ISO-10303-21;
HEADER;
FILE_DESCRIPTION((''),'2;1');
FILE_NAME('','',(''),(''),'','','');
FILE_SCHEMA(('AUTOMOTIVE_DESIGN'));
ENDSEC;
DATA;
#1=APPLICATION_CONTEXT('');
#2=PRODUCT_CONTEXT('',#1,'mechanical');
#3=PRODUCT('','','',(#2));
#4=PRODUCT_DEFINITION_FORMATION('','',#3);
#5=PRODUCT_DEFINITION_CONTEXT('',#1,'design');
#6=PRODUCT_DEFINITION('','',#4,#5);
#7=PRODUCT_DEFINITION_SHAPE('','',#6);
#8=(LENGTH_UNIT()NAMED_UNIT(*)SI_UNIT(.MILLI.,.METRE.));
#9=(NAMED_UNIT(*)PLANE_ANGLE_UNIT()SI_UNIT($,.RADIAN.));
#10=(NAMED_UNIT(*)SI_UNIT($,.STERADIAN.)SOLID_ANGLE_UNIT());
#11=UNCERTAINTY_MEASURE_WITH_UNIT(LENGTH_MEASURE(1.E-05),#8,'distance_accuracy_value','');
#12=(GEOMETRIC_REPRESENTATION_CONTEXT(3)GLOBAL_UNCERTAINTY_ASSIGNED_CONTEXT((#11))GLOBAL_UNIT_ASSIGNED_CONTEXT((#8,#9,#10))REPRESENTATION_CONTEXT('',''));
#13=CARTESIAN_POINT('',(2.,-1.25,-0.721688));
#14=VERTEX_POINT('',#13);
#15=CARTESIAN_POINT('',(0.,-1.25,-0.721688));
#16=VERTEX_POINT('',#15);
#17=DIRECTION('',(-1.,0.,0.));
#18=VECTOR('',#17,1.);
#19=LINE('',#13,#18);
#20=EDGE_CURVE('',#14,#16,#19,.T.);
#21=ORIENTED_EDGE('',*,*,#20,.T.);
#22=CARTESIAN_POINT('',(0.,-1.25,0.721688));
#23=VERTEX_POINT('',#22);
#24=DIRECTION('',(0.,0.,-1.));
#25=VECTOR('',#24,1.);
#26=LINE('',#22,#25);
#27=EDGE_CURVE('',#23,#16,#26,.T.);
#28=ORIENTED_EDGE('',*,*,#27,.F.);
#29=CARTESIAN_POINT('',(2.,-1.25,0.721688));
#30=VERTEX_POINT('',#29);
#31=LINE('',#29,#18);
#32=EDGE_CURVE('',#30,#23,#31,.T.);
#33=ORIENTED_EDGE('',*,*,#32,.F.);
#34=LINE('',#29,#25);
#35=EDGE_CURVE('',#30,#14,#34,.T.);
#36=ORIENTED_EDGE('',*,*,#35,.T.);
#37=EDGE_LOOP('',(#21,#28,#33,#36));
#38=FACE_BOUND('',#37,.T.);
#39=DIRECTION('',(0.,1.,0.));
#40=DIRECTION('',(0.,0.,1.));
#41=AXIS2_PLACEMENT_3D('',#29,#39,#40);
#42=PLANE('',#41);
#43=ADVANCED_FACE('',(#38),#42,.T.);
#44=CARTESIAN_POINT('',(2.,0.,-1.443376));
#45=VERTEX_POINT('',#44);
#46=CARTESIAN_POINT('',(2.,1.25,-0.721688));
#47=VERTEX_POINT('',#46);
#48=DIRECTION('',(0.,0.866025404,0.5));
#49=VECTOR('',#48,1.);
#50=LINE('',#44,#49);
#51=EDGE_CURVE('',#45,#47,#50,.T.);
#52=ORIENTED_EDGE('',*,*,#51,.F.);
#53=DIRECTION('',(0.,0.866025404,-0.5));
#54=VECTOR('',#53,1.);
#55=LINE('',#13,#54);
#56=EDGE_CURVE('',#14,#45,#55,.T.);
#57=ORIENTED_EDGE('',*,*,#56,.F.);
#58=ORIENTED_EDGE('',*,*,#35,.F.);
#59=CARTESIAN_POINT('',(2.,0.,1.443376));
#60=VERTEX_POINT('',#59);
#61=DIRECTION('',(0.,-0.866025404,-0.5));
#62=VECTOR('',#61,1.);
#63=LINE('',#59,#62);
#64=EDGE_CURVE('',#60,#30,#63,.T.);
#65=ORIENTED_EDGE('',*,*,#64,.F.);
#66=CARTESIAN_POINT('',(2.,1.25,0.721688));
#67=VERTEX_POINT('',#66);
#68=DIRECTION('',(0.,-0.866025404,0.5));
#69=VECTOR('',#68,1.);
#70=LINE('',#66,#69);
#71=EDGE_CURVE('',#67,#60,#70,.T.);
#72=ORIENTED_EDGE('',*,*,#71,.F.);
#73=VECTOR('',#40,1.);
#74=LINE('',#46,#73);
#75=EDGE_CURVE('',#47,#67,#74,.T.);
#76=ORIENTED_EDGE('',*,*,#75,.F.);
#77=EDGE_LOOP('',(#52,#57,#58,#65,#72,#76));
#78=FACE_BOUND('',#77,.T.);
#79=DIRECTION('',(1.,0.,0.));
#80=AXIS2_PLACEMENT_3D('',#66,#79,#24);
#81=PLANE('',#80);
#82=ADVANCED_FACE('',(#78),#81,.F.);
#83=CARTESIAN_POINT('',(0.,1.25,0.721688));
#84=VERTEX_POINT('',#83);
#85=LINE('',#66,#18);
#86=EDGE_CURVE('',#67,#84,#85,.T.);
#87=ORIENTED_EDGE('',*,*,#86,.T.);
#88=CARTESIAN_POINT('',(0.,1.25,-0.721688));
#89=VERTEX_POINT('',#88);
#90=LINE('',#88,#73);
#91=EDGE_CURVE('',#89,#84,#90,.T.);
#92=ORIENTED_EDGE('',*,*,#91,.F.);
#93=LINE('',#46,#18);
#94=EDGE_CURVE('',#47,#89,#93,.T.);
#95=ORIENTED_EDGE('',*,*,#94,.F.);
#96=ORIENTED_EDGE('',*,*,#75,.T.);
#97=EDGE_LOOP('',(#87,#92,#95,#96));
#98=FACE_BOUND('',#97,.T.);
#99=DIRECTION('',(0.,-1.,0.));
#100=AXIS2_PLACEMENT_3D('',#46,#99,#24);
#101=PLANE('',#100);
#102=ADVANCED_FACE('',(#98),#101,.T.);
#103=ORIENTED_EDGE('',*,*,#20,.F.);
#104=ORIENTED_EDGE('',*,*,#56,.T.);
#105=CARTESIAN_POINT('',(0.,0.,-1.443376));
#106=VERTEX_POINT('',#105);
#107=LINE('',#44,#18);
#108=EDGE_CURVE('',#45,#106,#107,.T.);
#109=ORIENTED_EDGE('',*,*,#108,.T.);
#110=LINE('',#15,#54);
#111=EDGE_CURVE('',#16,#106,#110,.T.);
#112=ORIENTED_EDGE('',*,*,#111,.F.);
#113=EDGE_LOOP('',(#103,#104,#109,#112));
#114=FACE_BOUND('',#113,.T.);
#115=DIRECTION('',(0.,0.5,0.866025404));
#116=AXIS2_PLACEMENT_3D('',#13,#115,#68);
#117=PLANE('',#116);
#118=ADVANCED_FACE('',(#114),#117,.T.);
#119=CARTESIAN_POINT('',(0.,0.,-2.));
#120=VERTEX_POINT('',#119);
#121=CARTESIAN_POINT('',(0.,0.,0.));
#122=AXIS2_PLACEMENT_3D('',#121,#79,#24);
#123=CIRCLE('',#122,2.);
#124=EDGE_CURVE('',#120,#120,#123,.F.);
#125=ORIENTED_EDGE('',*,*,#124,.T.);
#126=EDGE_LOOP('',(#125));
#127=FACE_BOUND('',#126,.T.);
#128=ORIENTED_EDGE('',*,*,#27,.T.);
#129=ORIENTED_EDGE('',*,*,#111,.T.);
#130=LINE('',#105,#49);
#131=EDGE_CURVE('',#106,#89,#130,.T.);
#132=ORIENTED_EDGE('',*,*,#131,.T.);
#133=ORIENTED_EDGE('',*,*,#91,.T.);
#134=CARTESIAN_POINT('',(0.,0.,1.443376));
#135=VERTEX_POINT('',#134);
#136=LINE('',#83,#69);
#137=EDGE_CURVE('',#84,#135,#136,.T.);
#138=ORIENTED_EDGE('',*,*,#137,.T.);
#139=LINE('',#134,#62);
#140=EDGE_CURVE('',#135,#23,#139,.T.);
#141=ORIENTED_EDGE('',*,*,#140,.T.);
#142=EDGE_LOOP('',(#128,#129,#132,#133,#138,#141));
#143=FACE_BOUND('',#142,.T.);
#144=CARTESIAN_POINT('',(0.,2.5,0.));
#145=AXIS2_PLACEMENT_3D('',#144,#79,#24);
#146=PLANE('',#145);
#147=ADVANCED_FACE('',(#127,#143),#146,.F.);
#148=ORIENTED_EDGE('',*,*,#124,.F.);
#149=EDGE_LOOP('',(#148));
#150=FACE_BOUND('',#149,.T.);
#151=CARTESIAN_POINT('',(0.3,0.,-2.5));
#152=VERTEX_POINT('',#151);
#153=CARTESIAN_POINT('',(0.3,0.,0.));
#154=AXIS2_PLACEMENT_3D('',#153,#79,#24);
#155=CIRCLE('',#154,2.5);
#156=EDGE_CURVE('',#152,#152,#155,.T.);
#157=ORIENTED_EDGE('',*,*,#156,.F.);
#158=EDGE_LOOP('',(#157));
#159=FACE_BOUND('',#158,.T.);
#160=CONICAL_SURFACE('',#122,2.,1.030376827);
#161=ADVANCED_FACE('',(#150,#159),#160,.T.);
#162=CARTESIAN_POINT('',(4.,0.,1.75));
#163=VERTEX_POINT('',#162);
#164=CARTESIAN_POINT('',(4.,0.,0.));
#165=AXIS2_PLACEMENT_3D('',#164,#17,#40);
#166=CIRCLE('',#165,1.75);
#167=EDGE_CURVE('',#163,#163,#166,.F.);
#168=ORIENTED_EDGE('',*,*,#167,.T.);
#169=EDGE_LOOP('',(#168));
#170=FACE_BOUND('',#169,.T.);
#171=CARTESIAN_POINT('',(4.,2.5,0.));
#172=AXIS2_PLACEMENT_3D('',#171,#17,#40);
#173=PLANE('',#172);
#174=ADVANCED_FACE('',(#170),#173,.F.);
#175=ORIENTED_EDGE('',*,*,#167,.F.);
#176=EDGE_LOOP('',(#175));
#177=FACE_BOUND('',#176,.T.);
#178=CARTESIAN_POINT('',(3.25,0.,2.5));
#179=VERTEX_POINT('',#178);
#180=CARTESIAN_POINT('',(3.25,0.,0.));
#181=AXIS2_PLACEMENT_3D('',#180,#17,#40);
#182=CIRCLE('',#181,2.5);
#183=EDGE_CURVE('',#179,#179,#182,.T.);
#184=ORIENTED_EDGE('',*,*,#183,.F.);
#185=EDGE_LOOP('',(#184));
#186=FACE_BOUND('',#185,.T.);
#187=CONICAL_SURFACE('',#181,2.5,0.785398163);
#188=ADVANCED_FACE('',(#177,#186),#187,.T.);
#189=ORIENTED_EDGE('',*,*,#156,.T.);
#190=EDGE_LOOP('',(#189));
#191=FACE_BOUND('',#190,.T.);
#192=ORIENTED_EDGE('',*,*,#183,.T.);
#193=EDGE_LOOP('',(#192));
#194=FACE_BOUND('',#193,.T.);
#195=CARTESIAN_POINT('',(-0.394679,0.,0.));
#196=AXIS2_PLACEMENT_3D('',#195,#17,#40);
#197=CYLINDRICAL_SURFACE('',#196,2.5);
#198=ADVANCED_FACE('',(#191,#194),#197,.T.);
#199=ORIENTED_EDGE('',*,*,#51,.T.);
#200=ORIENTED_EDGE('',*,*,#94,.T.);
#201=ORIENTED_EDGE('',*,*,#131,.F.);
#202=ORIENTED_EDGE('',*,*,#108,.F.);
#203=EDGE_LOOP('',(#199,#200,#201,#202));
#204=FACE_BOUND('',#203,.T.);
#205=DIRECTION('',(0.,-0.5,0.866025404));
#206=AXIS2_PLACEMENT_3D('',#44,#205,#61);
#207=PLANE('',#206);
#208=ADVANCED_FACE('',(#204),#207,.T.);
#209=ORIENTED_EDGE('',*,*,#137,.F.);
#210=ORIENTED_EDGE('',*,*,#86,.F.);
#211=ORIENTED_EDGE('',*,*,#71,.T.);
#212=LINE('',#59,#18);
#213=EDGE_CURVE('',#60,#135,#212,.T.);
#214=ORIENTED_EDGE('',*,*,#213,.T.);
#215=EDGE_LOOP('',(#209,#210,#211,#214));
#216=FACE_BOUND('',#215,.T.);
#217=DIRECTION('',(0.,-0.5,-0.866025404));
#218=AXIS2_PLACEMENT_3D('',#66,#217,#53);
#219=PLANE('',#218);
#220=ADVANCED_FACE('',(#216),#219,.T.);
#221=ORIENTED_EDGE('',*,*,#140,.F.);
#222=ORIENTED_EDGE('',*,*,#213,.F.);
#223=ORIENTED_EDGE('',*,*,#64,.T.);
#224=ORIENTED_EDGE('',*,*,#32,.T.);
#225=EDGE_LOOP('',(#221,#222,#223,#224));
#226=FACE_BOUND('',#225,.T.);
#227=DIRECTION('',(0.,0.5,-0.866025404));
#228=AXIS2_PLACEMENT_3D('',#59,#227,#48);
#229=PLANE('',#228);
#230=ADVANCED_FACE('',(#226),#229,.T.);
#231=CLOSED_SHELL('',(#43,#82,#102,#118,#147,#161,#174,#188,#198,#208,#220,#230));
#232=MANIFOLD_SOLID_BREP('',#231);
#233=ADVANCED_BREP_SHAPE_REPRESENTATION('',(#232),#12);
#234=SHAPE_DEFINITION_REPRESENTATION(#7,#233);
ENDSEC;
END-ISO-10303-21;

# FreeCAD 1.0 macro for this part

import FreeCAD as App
import Part
import Sketcher
Q = App.Units.Quantity


def edges_at(feature, points):
    """Names of the edges that pass closest to the given points."""
    edges = feature.Shape.Edges
    near = lambda p: min(range(len(edges)), key=lambda i: edges[i].distToShape(Part.Vertex(*p))[0])
    return sorted({f"Edge{near(p) + 1}" for p in points})


def add_polygon(sketch, points):
    """Adds a closed chain of lines whose ends are joined by coincident constraints."""
    first, n = sketch.GeometryCount, len(points)
    for a, b in zip(points, points[1:] + points[:1]):
        sketch.addGeometry(Part.LineSegment(App.Vector(*a, 0), App.Vector(*b, 0)), False)
    for i in range(n):
        sketch.addConstraint(Sketcher.Constraint("Coincident", first + i, 2, first + (i + 1) % n, 1))

doc = App.newDocument("Part")
params = doc.addObject("Spreadsheet::Sheet", "Params")
for row, (alias, value) in enumerate([
    ("sketch1_width", "4 mm"),
    ("sketch1_height", "2.5 mm"),
    ("revolution_angle", "360 deg"),
    ("pocket1_length", "2 mm"),
    ("chamfer_size", "0.75 mm"),
    ("chamfer2_size", "0.3 mm"),
    ("chamfer2_size2", "0.5 mm"),
], start=1):
    params.set(f"A{row}", alias)
    params.set(f"B{row}", "=" + value)
    params.setAlias(f"B{row}", alias)

body = doc.addObject("PartDesign::Body", "Body")

sketch1 = body.newObject("Sketcher::SketchObject", "Sketch")
sketch1.AttachmentSupport = (doc.getObject("XY_Plane"), [""])
sketch1.MapMode = "FlatFace"
add_polygon(sketch1, [(0, 2.5), (0, 0), (4, 0), (4, 2.5)])
sketch1.addConstraint(Sketcher.Constraint("Vertical", 0))
sketch1.addConstraint(Sketcher.Constraint("Horizontal", 1))
sketch1.addConstraint(Sketcher.Constraint("Vertical", 2))
sketch1.addConstraint(Sketcher.Constraint("Horizontal", 3))
sketch1.addConstraint(Sketcher.Constraint("Coincident", 0, 2, -1, 1))
sketch1.addConstraint(Sketcher.Constraint("DistanceX", 1, 1, 1, 2, 4.0))
sketch1.addConstraint(Sketcher.Constraint("DistanceY", 0, 2, 0, 1, 2.5))
sketch1.setExpression("Constraints[9]", "Params.sketch1_width")
sketch1.setExpression("Constraints[10]", "Params.sketch1_height")
revolution = body.newObject("PartDesign::Revolution", "Revolution")
revolution.Profile = sketch1
revolution.ReferenceAxis = (sketch1, ["H_Axis"])
revolution.setExpression("Angle", "Params.revolution_angle")

sketch2 = body.newObject("Sketcher::SketchObject", "Sketch001")
sketch2.AttachmentSupport = (doc.getObject("YZ_Plane"), [""])
sketch2.MapMode = "FlatFace"
add_polygon(sketch2, [(1.2, 0.7), (0, 1.4), (-1.2, 0.7), (-1.2, -0.7), (0, -1.4), (1.2, -0.7)])
sketch2.addConstraint(Sketcher.Constraint("Vertical", 2))
sketch2.addConstraint(Sketcher.Constraint("Vertical", 5))
sketch2.addConstraint(Sketcher.Constraint("Symmetric", 0, 2, 3, 2, -1, 1))
sketch2.addConstraint(Sketcher.Constraint("Symmetric", 1, 2, 4, 2, -1, 1))
sketch2.addConstraint(Sketcher.Constraint("PointOnObject", 0, 2, -2))
sketch2.addConstraint(Sketcher.Constraint("Parallel", 0, 3))
sketch2.addConstraint(Sketcher.Constraint("Horizontal", 2, 2, 4, 2))
sketch2.addConstraint(Sketcher.Constraint("Angle", 0, Q("150 deg")))
sketch2.addConstraint(Sketcher.Constraint("DistanceX", 2, 2, 4, 2, 2.5))
sketch2.addConstraint(Sketcher.Constraint("DistanceY", 2, 2, 2, 1, 1.443376))
pocket1 = body.newObject("PartDesign::Pocket", "Pocket")
pocket1.Profile = sketch2
pocket1.setExpression("Length", "Params.pocket1_length")
pocket1.Reversed = True
doc.recompute()

chamfer = body.newObject("PartDesign::Chamfer", "Chamfer")
chamfer.Base = (pocket1, edges_at(pocket1, [(4, -2.5, 0)]))
chamfer.setExpression("Size", "Params.chamfer_size")
doc.recompute()

chamfer2 = body.newObject("PartDesign::Chamfer", "Chamfer001")
chamfer2.Base = (chamfer, edges_at(chamfer, [(0, -2.5, 0)]))
chamfer2.ChamferType = "Two distances"
chamfer2.setExpression("Size", "Params.chamfer2_size")
chamfer2.setExpression("Size2", "Params.chamfer2_size2")

doc.recompute()
